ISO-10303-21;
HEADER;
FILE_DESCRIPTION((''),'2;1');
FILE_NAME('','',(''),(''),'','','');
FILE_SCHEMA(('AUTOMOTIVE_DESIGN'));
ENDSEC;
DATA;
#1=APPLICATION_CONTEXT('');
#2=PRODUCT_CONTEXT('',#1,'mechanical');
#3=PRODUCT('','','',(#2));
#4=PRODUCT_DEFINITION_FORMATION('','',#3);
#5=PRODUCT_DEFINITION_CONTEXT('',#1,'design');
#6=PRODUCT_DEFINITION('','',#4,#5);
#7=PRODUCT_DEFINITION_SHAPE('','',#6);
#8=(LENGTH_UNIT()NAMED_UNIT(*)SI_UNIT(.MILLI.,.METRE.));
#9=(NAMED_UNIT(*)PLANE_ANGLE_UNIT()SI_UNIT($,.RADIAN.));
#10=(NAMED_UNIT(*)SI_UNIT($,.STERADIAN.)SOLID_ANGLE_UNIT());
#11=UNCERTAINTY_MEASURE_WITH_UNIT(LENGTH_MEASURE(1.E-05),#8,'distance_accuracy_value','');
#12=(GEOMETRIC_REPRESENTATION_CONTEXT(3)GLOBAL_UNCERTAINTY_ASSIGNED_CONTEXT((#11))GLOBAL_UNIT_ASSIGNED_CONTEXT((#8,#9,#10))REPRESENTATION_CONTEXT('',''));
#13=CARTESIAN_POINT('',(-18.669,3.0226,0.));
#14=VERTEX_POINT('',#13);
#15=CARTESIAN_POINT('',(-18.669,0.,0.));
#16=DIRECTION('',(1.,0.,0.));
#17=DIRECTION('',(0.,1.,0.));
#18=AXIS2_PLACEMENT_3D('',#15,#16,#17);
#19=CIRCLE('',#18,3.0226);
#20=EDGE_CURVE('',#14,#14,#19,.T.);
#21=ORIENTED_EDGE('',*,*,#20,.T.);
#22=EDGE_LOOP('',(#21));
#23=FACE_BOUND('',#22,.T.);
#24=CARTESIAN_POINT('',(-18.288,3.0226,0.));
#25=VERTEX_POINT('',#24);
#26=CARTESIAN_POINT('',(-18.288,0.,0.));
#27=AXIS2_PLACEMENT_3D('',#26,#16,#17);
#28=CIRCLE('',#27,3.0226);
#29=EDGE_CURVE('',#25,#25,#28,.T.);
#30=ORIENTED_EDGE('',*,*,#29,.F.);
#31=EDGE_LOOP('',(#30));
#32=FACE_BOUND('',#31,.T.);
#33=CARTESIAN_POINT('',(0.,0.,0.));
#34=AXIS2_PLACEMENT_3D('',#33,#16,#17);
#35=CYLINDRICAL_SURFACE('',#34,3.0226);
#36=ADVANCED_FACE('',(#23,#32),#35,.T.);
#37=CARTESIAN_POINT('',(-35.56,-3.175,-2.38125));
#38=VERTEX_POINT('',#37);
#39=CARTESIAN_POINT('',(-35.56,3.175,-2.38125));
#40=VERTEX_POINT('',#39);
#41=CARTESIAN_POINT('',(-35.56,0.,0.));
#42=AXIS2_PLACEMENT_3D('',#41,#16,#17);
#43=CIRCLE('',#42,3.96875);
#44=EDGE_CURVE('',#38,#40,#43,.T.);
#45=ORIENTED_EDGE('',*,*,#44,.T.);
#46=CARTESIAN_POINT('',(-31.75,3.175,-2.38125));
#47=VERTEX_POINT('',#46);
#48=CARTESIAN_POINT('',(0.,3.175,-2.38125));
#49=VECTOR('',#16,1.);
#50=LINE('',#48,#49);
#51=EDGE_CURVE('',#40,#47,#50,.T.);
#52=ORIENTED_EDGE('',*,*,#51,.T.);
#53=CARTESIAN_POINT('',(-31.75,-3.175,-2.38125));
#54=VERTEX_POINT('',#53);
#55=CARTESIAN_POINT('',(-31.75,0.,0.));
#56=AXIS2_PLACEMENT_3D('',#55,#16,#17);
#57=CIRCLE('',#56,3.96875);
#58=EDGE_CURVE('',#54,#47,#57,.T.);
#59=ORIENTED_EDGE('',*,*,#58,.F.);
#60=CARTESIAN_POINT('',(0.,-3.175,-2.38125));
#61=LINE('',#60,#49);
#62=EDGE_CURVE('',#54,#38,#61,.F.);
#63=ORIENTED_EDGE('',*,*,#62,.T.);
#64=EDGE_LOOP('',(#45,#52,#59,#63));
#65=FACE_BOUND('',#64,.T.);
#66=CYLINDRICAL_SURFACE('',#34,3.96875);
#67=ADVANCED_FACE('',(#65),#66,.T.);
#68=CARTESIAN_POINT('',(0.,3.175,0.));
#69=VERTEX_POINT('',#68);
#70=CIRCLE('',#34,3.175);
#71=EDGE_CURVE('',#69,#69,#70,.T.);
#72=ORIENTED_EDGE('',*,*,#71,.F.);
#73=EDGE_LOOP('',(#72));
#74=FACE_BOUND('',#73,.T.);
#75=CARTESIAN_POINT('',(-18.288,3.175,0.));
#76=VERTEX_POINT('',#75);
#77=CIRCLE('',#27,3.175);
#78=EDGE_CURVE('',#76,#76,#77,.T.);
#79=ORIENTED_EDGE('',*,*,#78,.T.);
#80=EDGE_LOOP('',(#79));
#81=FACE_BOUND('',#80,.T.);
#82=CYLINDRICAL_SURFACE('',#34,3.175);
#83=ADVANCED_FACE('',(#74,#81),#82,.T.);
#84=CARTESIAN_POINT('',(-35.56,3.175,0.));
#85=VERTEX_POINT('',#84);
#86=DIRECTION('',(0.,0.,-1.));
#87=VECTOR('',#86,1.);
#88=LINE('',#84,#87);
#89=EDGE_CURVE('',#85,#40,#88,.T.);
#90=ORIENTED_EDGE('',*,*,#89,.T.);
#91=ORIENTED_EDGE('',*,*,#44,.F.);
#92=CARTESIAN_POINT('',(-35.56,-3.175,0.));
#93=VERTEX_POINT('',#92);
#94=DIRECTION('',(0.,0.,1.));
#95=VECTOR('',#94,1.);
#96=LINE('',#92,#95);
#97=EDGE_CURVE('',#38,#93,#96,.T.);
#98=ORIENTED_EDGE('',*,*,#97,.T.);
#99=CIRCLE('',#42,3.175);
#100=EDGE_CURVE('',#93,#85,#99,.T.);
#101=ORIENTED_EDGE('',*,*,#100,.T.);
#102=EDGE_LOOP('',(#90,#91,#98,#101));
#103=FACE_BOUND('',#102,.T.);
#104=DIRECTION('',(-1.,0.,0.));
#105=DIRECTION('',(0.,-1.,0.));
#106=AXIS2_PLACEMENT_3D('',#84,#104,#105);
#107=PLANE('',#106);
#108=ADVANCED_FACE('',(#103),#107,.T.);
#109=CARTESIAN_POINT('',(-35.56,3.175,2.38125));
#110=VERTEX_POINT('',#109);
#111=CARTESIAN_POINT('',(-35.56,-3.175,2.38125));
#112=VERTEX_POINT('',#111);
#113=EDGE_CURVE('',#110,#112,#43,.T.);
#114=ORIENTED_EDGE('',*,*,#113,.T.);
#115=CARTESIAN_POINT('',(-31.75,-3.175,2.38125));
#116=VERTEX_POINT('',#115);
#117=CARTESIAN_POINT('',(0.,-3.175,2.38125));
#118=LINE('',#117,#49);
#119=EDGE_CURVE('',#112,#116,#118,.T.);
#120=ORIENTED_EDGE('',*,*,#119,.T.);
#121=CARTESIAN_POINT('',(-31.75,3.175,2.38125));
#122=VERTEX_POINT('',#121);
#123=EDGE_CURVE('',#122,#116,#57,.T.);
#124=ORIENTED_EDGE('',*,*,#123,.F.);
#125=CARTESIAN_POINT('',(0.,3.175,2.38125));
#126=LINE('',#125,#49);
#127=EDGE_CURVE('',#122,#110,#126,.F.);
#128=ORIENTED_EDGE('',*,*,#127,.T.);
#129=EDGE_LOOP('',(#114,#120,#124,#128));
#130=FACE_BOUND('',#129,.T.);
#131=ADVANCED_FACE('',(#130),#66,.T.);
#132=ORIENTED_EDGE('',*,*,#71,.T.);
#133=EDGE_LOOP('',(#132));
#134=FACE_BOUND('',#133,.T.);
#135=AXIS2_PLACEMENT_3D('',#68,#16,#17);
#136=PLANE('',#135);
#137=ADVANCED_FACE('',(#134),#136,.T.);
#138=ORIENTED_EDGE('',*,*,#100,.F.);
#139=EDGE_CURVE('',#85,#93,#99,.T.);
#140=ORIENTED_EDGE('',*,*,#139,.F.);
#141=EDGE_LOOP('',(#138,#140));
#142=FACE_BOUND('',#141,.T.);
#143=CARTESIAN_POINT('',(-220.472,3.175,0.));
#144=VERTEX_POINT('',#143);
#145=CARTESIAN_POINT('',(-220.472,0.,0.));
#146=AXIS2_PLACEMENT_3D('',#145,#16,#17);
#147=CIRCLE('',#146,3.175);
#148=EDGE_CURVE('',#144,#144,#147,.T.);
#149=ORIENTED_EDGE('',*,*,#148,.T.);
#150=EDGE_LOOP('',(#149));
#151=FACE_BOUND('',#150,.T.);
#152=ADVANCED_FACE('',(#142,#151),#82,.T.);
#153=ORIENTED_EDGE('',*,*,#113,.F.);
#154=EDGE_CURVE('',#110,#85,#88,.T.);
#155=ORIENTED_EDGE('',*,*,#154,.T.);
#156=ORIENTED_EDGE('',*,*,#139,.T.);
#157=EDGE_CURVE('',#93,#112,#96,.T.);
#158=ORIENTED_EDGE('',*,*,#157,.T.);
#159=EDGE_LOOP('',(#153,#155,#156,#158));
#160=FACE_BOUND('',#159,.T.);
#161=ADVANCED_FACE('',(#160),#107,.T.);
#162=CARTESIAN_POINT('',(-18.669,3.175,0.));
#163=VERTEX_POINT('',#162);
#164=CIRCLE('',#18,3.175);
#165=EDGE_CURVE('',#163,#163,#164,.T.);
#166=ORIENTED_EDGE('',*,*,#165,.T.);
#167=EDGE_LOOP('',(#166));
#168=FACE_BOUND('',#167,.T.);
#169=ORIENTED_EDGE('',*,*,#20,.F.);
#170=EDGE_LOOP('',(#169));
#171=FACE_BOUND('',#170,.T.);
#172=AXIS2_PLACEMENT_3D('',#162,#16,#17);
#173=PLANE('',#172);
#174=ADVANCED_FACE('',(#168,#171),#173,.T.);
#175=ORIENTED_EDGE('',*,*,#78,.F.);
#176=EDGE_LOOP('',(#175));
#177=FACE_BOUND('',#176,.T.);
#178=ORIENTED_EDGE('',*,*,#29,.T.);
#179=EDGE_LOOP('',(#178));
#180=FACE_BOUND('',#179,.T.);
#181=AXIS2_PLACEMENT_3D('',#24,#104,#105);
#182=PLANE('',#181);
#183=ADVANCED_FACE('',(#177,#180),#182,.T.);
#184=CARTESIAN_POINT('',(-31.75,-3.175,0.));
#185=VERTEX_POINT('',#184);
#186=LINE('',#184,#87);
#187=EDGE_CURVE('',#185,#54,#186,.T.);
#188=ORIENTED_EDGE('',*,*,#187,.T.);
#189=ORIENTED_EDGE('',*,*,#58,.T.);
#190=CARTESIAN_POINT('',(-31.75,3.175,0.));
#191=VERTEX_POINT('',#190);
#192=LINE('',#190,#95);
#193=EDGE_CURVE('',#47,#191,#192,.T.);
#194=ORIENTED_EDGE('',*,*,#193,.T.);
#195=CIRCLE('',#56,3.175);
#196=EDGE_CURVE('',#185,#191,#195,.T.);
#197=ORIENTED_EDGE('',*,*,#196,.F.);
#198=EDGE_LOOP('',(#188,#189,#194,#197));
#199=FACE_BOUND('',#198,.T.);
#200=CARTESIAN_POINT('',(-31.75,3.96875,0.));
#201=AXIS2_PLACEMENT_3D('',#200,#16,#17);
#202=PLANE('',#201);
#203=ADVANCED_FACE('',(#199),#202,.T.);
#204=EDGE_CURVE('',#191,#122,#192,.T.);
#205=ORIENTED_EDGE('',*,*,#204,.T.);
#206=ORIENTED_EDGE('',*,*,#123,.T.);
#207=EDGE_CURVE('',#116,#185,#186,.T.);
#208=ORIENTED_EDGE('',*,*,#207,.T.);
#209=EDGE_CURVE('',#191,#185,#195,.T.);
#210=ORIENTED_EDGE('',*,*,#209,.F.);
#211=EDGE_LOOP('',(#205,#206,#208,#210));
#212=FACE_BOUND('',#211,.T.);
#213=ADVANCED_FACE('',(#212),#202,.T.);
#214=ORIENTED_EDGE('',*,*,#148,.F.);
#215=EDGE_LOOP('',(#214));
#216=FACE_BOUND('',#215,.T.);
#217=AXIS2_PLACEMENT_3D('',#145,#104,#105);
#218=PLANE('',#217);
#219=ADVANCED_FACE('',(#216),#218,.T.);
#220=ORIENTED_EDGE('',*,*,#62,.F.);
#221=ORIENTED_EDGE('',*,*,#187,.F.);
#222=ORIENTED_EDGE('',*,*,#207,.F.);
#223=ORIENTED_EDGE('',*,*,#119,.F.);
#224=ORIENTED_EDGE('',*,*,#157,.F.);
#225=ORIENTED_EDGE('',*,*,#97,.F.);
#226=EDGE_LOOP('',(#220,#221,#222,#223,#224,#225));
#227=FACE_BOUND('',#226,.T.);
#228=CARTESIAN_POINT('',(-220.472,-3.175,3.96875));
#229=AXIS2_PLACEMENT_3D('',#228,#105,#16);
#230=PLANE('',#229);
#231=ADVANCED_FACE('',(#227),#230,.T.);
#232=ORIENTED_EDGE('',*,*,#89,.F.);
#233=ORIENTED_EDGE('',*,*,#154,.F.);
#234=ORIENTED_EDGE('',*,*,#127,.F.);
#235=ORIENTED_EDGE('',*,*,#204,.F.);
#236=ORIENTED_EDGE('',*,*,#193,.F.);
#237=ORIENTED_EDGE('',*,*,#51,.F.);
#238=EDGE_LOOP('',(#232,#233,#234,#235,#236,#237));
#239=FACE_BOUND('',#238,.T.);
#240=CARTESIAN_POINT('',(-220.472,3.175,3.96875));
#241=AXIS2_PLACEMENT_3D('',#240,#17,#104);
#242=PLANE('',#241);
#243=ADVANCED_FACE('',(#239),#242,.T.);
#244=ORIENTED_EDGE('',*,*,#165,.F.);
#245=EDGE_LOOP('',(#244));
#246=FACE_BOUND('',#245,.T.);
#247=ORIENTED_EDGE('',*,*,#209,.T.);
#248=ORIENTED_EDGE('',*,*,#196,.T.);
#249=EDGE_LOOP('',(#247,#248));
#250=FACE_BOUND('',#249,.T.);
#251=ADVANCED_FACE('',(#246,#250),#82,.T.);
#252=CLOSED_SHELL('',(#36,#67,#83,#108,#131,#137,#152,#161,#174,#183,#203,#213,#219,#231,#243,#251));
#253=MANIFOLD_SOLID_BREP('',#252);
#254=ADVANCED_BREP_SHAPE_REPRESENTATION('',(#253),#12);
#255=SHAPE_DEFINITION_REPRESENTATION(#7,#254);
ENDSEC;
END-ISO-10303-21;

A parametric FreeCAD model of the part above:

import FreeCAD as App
import Part
import Sketcher
Q = App.Units.Quantity

doc = App.newDocument("Part")
body = doc.addObject("PartDesign::Body", "Body")

sketch1 = body.newObject("Sketcher::SketchObject", "Sketch")
sketch1.AttachmentSupport = (doc.getObject("XY_Plane"), [""])
sketch1.MapMode = "FlatFace"
sketch1.addGeometry([
    Part.LineSegment(App.Vector(-220.47, 0, 0), App.Vector(0, 0, 0)),
    Part.LineSegment(App.Vector(0, 0, 0), App.Vector(0, 3.17, 0)),
    Part.LineSegment(App.Vector(0, 3.17, 0), App.Vector(-18.29, 3.17, 0)),
    Part.LineSegment(App.Vector(-18.29, 3.17, 0), App.Vector(-18.29, 3.02, 0)),
    Part.LineSegment(App.Vector(-18.29, 3.02, 0), App.Vector(-18.67, 3.02, 0)),
    Part.LineSegment(App.Vector(-18.67, 3.02, 0), App.Vector(-18.67, 3.17, 0)),
    Part.LineSegment(App.Vector(-18.67, 3.17, 0), App.Vector(-31.75, 3.17, 0)),
    Part.LineSegment(App.Vector(-31.75, 3.17, 0), App.Vector(-31.75, 3.97, 0)),
    Part.LineSegment(App.Vector(-31.75, 3.97, 0), App.Vector(-35.56, 3.97, 0)),
    Part.LineSegment(App.Vector(-35.56, 3.97, 0), App.Vector(-35.56, 3.17, 0)),
    Part.LineSegment(App.Vector(-35.56, 3.17, 0), App.Vector(-220.47, 3.17, 0)),
    Part.LineSegment(App.Vector(-220.47, 3.17, 0), App.Vector(-220.47, 0, 0)),
], False)
sketch1.addConstraint([
    Sketcher.Constraint("Coincident", 0, 2, 1, 1),
    Sketcher.Constraint("Coincident", 1, 2, 2, 1),
    Sketcher.Constraint("Coincident", 2, 2, 3, 1),
    Sketcher.Constraint("Coincident", 3, 2, 4, 1),
    Sketcher.Constraint("Coincident", 4, 2, 5, 1),
    Sketcher.Constraint("Coincident", 5, 2, 6, 1),
    Sketcher.Constraint("Coincident", 6, 2, 7, 1),
    Sketcher.Constraint("Coincident", 7, 2, 8, 1),
    Sketcher.Constraint("Coincident", 8, 2, 9, 1),
    Sketcher.Constraint("Coincident", 9, 2, 10, 1),
    Sketcher.Constraint("Coincident", 10, 2, 11, 1),
    Sketcher.Constraint("Coincident", 11, 2, 0, 1),
    Sketcher.Constraint("Horizontal", 0),
    Sketcher.Constraint("Vertical", 1),
    Sketcher.Constraint("Horizontal", 2),
    Sketcher.Constraint("Vertical", 3),
    Sketcher.Constraint("Horizontal", 4),
    Sketcher.Constraint("Vertical", 5),
    Sketcher.Constraint("Horizontal", 6),
    Sketcher.Constraint("Vertical", 7),
    Sketcher.Constraint("Horizontal", 8),
    Sketcher.Constraint("Vertical", 9),
    Sketcher.Constraint("Horizontal", 10),
    Sketcher.Constraint("Vertical", 11),
    Sketcher.Constraint("Coincident", 0, 2, -1, 1),
    Sketcher.Constraint("Horizontal", 2, 2, 5, 2),
    Sketcher.Constraint("Horizontal", 6, 2, 9, 2),
    Sketcher.Constraint("DistanceX", 0, 1, 0, 2, Q("8.68 in")),
    Sketcher.Constraint("DistanceX", 2, 2, 2, 1, Q("0.72 in")),
    Sketcher.Constraint("DistanceX", 8, 2, 8, 1, Q("0.15 in")),
    Sketcher.Constraint("DistanceX", 10, 2, 10, 1, Q("7.28 in")),
    Sketcher.Constraint("DistanceX", 4, 2, 4, 1, Q("0.015 in")),
    Sketcher.Constraint("DistanceY", 1, 1, 1, 2, Q("0.125 in")),
    Sketcher.Constraint("DistanceY", 3, 2, 3, 1, Q("0.006 in")),
    Sketcher.Constraint("DistanceY", 7, 1, 7, 2, Q("0.03125 in")),
])
revolution = body.newObject("PartDesign::Revolution", "Revolution")
revolution.Profile = sketch1
revolution.ReferenceAxis = (sketch1, ["H_Axis"])
revolution.Angle = 360

sketch2 = body.newObject("Sketcher::SketchObject", "Sketch001")
sketch2.AttachmentSupport = (doc.getObject("YZ_Plane"), [""])
sketch2.MapMode = "FlatFace"
sketch2.addGeometry([
    Part.LineSegment(App.Vector(27, 27, 0), App.Vector(-27, 27, 0)),
    Part.LineSegment(App.Vector(-27, 27, 0), App.Vector(-27, -27, 0)),
    Part.LineSegment(App.Vector(-27, -27, 0), App.Vector(27, -27, 0)),
    Part.LineSegment(App.Vector(27, -27, 0), App.Vector(27, 27, 0)),
    Part.LineSegment(App.Vector(-3, -4, 0), App.Vector(-3, 4, 0)),
    Part.LineSegment(App.Vector(-3, 4, 0), App.Vector(3, 4, 0)),
    Part.LineSegment(App.Vector(3, 4, 0), App.Vector(3, -4, 0)),
    Part.LineSegment(App.Vector(3, -4, 0), App.Vector(-3, -4, 0)),
], False)
sketch2.addConstraint([
    Sketcher.Constraint("Coincident", 0, 2, 1, 1),
    Sketcher.Constraint("Coincident", 1, 2, 2, 1),
    Sketcher.Constraint("Coincident", 2, 2, 3, 1),
    Sketcher.Constraint("Coincident", 3, 2, 0, 1),
    Sketcher.Constraint("Coincident", 4, 2, 5, 1),
    Sketcher.Constraint("Coincident", 5, 2, 6, 1),
    Sketcher.Constraint("Coincident", 6, 2, 7, 1),
    Sketcher.Constraint("Coincident", 7, 2, 4, 1),
    Sketcher.Constraint("Horizontal", 0),
    Sketcher.Constraint("Vertical", 1),
    Sketcher.Constraint("Horizontal", 2),
    Sketcher.Constraint("Vertical", 3),
    Sketcher.Constraint("Vertical", 4),
    Sketcher.Constraint("Horizontal", 5),
    Sketcher.Constraint("Vertical", 6),
    Sketcher.Constraint("Horizontal", 7),
    Sketcher.Constraint("Symmetric", 0, 2, 2, 2, -1, 1),
    Sketcher.Constraint("Symmetric", 4, 2, 6, 2, -1, 1),
    Sketcher.Constraint("Equal", 2, 1),
    Sketcher.Constraint("DistanceX", 5, 1, 5, 2, Q("0.25 in")),
    Sketcher.Constraint("DistanceY", 4, 1, 4, 2, Q("0.3125 in")),
    Sketcher.Constraint("DistanceX", 0, 2, 0, 1, 54.09),
])
pocket1 = body.newObject("PartDesign::Pocket", "Pocket")
pocket1.Profile = sketch2
pocket1.Type = "ThroughAll"

doc.recompute()
